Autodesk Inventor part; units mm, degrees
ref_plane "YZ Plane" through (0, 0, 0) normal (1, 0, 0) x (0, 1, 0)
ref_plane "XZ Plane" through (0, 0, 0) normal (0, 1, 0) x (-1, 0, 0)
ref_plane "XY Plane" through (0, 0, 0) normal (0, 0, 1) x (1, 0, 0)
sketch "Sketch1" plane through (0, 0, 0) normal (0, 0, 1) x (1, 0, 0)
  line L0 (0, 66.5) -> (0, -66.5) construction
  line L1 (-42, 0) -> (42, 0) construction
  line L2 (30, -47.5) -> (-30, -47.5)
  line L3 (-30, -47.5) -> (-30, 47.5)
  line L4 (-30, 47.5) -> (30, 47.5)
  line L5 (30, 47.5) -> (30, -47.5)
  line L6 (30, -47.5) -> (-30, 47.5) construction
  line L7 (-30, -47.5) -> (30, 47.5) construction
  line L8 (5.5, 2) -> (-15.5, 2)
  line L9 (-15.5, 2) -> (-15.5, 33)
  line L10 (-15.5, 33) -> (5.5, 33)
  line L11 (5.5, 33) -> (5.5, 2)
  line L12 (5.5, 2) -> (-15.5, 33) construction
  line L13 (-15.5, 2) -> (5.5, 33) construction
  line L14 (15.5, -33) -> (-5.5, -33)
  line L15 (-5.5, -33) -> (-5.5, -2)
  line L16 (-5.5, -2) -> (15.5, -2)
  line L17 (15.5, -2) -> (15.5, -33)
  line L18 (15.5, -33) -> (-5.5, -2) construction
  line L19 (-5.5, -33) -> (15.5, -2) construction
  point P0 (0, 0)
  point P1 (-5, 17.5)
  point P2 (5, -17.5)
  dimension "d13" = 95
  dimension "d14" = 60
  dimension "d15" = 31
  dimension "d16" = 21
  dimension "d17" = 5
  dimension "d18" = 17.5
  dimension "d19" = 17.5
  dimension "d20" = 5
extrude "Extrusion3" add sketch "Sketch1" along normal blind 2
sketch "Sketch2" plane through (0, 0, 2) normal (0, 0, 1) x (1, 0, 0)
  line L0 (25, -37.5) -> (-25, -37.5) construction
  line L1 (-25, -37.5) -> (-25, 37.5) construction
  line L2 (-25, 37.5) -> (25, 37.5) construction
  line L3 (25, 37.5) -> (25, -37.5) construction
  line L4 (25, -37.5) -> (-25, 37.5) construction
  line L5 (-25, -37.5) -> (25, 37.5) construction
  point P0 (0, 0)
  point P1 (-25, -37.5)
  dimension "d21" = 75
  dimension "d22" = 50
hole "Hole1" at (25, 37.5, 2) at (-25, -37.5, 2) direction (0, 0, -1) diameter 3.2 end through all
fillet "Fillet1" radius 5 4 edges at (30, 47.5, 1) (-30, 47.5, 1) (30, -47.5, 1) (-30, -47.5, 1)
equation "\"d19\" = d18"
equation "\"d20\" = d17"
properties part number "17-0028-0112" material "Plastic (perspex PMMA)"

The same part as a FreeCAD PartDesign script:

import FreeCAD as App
import Part
import Sketcher
from FreeCAD import Vector


def edges_at(feature, points):
    """Names of the edges that pass closest to the given points."""
    edges = feature.Shape.Edges
    near = lambda p: min(range(len(edges)), key=lambda i: edges[i].distToShape(Part.Vertex(*p))[0])
    return sorted({f"Edge{near(p) + 1}" for p in points})

doc = App.newDocument("Part")
body = doc.addObject("PartDesign::Body", "Body")

# Sketch on XY plane
sketch1 = body.newObject("Sketcher::SketchObject", "Sketch")
sketch1.AttachmentSupport = (doc.getObject("XY_Plane"), [""])
sketch1.MapMode = "FlatFace"
sketch1.addGeometry([
    Part.LineSegment(Vector(-30, -48, 0), Vector(30, -48, 0)),  # 0
    Part.LineSegment(Vector(30, -48, 0), Vector(30, 48, 0)),  # 1
    Part.LineSegment(Vector(30, 48, 0), Vector(-30, 48, 0)),  # 2
    Part.LineSegment(Vector(-30, 48, 0), Vector(-30, -48, 0)),  # 3
    Part.LineSegment(Vector(16, -2, 0), Vector(16, -33, 0)),  # 4
    Part.LineSegment(Vector(16, -33, 0), Vector(-6, -33, 0)),  # 5
    Part.LineSegment(Vector(-6, -33, 0), Vector(-6, -2, 0)),  # 6
    Part.LineSegment(Vector(-6, -2, 0), Vector(16, -2, 0)),  # 7
    Part.LineSegment(Vector(6, 33, 0), Vector(6, 2, 0)),  # 8
    Part.LineSegment(Vector(6, 2, 0), Vector(-16, 2, 0)),  # 9
    Part.LineSegment(Vector(-16, 2, 0), Vector(-16, 33, 0)),  # 10
    Part.LineSegment(Vector(-16, 33, 0), Vector(6, 33, 0)),  # 11
], False)
sketch1.addConstraint([
    Sketcher.Constraint("Coincident", 0, 2, 1, 1),
    Sketcher.Constraint("Coincident", 1, 2, 2, 1),
    Sketcher.Constraint("Coincident", 2, 2, 3, 1),
    Sketcher.Constraint("Coincident", 3, 2, 0, 1),
    Sketcher.Constraint("Coincident", 4, 2, 5, 1),
    Sketcher.Constraint("Coincident", 5, 2, 6, 1),
    Sketcher.Constraint("Coincident", 6, 2, 7, 1),
    Sketcher.Constraint("Coincident", 7, 2, 4, 1),
    Sketcher.Constraint("Coincident", 8, 2, 9, 1),
    Sketcher.Constraint("Coincident", 9, 2, 10, 1),
    Sketcher.Constraint("Coincident", 10, 2, 11, 1),
    Sketcher.Constraint("Coincident", 11, 2, 8, 1),
    Sketcher.Constraint("Horizontal", 0),
    Sketcher.Constraint("Vertical", 1),
    Sketcher.Constraint("Horizontal", 2),
    Sketcher.Constraint("Vertical", 3),
    Sketcher.Constraint("Vertical", 4),
    Sketcher.Constraint("Horizontal", 5),
    Sketcher.Constraint("Vertical", 6),
    Sketcher.Constraint("Horizontal", 7),
    Sketcher.Constraint("Vertical", 8),
    Sketcher.Constraint("Horizontal", 9),
    Sketcher.Constraint("Vertical", 10),
    Sketcher.Constraint("Horizontal", 11),
    Sketcher.Constraint("Symmetric", 0, 2, 2, 2, -1, 1),
    Sketcher.Constraint("Symmetric", 6, 2, 8, 2, -1, 1),
    Sketcher.Constraint("Symmetric", 4, 2, 10, 2, -1, 1),
    Sketcher.Constraint("DistanceX", 0, 1, 0, 2, 60.0),
    Sketcher.Constraint("DistanceX", 5, 2, 5, 1, 21.0),
    Sketcher.Constraint("DistanceY", 1, 1, 1, 2, 95.0),
    Sketcher.Constraint("DistanceY", 4, 2, 4, 1, 31.0),
    Sketcher.Constraint("DistanceX", 9, 2, 7, 2, 31.0),
    Sketcher.Constraint("DistanceY", 4, 2, -1, 1, 33.0),
])
pad1 = body.newObject("PartDesign::Pad", "Pad")
pad1.Profile = sketch1
pad1.Length = 2

# Sketch on XY plane
sketch2 = body.newObject("Sketcher::SketchObject", "Sketch001")
sketch2.AttachmentSupport = (doc.getObject("XY_Plane"), [""])
sketch2.MapMode = "FlatFace"
sketch2.AttachmentOffset = App.Placement(Vector(0, 0, 2), App.Rotation())
sketch2.addGeometry([
    Part.Circle(Vector(25, 37.5, 0), Vector(0, 0, 1), 1.6),
    Part.Circle(Vector(-25, -37.5, 0), Vector(0, 0, 1), 1.6),
], False)
sketch2.addConstraint([
    Sketcher.Constraint("Equal", 0, 1),
    Sketcher.Constraint("Symmetric", 0, 3, 1, 3, -1, 1),
    Sketcher.Constraint("Diameter", 0, 3.2),
    Sketcher.Constraint("DistanceX", -1, 1, 0, 3, 25.0),
    Sketcher.Constraint("DistanceY", 1, 3, 0, 3, 75.0),
])
doc.recompute()
hole = body.newObject("PartDesign::Hole", "Hole")
hole.Profile = sketch2
hole.ThreadType = "None"
hole.Diameter = 3.2
hole.DepthType = "ThroughAll"
doc.recompute()

fillet = body.newObject("PartDesign::Fillet", "Fillet")
fillet.Base = (hole, edges_at(hole, [
    (30, 47.5, 1),
    (-30, 47.5, 1),
    (30, -47.5, 1),
    (-30, -47.5, 1),
]))
fillet.Radius = 5

doc.recompute()
